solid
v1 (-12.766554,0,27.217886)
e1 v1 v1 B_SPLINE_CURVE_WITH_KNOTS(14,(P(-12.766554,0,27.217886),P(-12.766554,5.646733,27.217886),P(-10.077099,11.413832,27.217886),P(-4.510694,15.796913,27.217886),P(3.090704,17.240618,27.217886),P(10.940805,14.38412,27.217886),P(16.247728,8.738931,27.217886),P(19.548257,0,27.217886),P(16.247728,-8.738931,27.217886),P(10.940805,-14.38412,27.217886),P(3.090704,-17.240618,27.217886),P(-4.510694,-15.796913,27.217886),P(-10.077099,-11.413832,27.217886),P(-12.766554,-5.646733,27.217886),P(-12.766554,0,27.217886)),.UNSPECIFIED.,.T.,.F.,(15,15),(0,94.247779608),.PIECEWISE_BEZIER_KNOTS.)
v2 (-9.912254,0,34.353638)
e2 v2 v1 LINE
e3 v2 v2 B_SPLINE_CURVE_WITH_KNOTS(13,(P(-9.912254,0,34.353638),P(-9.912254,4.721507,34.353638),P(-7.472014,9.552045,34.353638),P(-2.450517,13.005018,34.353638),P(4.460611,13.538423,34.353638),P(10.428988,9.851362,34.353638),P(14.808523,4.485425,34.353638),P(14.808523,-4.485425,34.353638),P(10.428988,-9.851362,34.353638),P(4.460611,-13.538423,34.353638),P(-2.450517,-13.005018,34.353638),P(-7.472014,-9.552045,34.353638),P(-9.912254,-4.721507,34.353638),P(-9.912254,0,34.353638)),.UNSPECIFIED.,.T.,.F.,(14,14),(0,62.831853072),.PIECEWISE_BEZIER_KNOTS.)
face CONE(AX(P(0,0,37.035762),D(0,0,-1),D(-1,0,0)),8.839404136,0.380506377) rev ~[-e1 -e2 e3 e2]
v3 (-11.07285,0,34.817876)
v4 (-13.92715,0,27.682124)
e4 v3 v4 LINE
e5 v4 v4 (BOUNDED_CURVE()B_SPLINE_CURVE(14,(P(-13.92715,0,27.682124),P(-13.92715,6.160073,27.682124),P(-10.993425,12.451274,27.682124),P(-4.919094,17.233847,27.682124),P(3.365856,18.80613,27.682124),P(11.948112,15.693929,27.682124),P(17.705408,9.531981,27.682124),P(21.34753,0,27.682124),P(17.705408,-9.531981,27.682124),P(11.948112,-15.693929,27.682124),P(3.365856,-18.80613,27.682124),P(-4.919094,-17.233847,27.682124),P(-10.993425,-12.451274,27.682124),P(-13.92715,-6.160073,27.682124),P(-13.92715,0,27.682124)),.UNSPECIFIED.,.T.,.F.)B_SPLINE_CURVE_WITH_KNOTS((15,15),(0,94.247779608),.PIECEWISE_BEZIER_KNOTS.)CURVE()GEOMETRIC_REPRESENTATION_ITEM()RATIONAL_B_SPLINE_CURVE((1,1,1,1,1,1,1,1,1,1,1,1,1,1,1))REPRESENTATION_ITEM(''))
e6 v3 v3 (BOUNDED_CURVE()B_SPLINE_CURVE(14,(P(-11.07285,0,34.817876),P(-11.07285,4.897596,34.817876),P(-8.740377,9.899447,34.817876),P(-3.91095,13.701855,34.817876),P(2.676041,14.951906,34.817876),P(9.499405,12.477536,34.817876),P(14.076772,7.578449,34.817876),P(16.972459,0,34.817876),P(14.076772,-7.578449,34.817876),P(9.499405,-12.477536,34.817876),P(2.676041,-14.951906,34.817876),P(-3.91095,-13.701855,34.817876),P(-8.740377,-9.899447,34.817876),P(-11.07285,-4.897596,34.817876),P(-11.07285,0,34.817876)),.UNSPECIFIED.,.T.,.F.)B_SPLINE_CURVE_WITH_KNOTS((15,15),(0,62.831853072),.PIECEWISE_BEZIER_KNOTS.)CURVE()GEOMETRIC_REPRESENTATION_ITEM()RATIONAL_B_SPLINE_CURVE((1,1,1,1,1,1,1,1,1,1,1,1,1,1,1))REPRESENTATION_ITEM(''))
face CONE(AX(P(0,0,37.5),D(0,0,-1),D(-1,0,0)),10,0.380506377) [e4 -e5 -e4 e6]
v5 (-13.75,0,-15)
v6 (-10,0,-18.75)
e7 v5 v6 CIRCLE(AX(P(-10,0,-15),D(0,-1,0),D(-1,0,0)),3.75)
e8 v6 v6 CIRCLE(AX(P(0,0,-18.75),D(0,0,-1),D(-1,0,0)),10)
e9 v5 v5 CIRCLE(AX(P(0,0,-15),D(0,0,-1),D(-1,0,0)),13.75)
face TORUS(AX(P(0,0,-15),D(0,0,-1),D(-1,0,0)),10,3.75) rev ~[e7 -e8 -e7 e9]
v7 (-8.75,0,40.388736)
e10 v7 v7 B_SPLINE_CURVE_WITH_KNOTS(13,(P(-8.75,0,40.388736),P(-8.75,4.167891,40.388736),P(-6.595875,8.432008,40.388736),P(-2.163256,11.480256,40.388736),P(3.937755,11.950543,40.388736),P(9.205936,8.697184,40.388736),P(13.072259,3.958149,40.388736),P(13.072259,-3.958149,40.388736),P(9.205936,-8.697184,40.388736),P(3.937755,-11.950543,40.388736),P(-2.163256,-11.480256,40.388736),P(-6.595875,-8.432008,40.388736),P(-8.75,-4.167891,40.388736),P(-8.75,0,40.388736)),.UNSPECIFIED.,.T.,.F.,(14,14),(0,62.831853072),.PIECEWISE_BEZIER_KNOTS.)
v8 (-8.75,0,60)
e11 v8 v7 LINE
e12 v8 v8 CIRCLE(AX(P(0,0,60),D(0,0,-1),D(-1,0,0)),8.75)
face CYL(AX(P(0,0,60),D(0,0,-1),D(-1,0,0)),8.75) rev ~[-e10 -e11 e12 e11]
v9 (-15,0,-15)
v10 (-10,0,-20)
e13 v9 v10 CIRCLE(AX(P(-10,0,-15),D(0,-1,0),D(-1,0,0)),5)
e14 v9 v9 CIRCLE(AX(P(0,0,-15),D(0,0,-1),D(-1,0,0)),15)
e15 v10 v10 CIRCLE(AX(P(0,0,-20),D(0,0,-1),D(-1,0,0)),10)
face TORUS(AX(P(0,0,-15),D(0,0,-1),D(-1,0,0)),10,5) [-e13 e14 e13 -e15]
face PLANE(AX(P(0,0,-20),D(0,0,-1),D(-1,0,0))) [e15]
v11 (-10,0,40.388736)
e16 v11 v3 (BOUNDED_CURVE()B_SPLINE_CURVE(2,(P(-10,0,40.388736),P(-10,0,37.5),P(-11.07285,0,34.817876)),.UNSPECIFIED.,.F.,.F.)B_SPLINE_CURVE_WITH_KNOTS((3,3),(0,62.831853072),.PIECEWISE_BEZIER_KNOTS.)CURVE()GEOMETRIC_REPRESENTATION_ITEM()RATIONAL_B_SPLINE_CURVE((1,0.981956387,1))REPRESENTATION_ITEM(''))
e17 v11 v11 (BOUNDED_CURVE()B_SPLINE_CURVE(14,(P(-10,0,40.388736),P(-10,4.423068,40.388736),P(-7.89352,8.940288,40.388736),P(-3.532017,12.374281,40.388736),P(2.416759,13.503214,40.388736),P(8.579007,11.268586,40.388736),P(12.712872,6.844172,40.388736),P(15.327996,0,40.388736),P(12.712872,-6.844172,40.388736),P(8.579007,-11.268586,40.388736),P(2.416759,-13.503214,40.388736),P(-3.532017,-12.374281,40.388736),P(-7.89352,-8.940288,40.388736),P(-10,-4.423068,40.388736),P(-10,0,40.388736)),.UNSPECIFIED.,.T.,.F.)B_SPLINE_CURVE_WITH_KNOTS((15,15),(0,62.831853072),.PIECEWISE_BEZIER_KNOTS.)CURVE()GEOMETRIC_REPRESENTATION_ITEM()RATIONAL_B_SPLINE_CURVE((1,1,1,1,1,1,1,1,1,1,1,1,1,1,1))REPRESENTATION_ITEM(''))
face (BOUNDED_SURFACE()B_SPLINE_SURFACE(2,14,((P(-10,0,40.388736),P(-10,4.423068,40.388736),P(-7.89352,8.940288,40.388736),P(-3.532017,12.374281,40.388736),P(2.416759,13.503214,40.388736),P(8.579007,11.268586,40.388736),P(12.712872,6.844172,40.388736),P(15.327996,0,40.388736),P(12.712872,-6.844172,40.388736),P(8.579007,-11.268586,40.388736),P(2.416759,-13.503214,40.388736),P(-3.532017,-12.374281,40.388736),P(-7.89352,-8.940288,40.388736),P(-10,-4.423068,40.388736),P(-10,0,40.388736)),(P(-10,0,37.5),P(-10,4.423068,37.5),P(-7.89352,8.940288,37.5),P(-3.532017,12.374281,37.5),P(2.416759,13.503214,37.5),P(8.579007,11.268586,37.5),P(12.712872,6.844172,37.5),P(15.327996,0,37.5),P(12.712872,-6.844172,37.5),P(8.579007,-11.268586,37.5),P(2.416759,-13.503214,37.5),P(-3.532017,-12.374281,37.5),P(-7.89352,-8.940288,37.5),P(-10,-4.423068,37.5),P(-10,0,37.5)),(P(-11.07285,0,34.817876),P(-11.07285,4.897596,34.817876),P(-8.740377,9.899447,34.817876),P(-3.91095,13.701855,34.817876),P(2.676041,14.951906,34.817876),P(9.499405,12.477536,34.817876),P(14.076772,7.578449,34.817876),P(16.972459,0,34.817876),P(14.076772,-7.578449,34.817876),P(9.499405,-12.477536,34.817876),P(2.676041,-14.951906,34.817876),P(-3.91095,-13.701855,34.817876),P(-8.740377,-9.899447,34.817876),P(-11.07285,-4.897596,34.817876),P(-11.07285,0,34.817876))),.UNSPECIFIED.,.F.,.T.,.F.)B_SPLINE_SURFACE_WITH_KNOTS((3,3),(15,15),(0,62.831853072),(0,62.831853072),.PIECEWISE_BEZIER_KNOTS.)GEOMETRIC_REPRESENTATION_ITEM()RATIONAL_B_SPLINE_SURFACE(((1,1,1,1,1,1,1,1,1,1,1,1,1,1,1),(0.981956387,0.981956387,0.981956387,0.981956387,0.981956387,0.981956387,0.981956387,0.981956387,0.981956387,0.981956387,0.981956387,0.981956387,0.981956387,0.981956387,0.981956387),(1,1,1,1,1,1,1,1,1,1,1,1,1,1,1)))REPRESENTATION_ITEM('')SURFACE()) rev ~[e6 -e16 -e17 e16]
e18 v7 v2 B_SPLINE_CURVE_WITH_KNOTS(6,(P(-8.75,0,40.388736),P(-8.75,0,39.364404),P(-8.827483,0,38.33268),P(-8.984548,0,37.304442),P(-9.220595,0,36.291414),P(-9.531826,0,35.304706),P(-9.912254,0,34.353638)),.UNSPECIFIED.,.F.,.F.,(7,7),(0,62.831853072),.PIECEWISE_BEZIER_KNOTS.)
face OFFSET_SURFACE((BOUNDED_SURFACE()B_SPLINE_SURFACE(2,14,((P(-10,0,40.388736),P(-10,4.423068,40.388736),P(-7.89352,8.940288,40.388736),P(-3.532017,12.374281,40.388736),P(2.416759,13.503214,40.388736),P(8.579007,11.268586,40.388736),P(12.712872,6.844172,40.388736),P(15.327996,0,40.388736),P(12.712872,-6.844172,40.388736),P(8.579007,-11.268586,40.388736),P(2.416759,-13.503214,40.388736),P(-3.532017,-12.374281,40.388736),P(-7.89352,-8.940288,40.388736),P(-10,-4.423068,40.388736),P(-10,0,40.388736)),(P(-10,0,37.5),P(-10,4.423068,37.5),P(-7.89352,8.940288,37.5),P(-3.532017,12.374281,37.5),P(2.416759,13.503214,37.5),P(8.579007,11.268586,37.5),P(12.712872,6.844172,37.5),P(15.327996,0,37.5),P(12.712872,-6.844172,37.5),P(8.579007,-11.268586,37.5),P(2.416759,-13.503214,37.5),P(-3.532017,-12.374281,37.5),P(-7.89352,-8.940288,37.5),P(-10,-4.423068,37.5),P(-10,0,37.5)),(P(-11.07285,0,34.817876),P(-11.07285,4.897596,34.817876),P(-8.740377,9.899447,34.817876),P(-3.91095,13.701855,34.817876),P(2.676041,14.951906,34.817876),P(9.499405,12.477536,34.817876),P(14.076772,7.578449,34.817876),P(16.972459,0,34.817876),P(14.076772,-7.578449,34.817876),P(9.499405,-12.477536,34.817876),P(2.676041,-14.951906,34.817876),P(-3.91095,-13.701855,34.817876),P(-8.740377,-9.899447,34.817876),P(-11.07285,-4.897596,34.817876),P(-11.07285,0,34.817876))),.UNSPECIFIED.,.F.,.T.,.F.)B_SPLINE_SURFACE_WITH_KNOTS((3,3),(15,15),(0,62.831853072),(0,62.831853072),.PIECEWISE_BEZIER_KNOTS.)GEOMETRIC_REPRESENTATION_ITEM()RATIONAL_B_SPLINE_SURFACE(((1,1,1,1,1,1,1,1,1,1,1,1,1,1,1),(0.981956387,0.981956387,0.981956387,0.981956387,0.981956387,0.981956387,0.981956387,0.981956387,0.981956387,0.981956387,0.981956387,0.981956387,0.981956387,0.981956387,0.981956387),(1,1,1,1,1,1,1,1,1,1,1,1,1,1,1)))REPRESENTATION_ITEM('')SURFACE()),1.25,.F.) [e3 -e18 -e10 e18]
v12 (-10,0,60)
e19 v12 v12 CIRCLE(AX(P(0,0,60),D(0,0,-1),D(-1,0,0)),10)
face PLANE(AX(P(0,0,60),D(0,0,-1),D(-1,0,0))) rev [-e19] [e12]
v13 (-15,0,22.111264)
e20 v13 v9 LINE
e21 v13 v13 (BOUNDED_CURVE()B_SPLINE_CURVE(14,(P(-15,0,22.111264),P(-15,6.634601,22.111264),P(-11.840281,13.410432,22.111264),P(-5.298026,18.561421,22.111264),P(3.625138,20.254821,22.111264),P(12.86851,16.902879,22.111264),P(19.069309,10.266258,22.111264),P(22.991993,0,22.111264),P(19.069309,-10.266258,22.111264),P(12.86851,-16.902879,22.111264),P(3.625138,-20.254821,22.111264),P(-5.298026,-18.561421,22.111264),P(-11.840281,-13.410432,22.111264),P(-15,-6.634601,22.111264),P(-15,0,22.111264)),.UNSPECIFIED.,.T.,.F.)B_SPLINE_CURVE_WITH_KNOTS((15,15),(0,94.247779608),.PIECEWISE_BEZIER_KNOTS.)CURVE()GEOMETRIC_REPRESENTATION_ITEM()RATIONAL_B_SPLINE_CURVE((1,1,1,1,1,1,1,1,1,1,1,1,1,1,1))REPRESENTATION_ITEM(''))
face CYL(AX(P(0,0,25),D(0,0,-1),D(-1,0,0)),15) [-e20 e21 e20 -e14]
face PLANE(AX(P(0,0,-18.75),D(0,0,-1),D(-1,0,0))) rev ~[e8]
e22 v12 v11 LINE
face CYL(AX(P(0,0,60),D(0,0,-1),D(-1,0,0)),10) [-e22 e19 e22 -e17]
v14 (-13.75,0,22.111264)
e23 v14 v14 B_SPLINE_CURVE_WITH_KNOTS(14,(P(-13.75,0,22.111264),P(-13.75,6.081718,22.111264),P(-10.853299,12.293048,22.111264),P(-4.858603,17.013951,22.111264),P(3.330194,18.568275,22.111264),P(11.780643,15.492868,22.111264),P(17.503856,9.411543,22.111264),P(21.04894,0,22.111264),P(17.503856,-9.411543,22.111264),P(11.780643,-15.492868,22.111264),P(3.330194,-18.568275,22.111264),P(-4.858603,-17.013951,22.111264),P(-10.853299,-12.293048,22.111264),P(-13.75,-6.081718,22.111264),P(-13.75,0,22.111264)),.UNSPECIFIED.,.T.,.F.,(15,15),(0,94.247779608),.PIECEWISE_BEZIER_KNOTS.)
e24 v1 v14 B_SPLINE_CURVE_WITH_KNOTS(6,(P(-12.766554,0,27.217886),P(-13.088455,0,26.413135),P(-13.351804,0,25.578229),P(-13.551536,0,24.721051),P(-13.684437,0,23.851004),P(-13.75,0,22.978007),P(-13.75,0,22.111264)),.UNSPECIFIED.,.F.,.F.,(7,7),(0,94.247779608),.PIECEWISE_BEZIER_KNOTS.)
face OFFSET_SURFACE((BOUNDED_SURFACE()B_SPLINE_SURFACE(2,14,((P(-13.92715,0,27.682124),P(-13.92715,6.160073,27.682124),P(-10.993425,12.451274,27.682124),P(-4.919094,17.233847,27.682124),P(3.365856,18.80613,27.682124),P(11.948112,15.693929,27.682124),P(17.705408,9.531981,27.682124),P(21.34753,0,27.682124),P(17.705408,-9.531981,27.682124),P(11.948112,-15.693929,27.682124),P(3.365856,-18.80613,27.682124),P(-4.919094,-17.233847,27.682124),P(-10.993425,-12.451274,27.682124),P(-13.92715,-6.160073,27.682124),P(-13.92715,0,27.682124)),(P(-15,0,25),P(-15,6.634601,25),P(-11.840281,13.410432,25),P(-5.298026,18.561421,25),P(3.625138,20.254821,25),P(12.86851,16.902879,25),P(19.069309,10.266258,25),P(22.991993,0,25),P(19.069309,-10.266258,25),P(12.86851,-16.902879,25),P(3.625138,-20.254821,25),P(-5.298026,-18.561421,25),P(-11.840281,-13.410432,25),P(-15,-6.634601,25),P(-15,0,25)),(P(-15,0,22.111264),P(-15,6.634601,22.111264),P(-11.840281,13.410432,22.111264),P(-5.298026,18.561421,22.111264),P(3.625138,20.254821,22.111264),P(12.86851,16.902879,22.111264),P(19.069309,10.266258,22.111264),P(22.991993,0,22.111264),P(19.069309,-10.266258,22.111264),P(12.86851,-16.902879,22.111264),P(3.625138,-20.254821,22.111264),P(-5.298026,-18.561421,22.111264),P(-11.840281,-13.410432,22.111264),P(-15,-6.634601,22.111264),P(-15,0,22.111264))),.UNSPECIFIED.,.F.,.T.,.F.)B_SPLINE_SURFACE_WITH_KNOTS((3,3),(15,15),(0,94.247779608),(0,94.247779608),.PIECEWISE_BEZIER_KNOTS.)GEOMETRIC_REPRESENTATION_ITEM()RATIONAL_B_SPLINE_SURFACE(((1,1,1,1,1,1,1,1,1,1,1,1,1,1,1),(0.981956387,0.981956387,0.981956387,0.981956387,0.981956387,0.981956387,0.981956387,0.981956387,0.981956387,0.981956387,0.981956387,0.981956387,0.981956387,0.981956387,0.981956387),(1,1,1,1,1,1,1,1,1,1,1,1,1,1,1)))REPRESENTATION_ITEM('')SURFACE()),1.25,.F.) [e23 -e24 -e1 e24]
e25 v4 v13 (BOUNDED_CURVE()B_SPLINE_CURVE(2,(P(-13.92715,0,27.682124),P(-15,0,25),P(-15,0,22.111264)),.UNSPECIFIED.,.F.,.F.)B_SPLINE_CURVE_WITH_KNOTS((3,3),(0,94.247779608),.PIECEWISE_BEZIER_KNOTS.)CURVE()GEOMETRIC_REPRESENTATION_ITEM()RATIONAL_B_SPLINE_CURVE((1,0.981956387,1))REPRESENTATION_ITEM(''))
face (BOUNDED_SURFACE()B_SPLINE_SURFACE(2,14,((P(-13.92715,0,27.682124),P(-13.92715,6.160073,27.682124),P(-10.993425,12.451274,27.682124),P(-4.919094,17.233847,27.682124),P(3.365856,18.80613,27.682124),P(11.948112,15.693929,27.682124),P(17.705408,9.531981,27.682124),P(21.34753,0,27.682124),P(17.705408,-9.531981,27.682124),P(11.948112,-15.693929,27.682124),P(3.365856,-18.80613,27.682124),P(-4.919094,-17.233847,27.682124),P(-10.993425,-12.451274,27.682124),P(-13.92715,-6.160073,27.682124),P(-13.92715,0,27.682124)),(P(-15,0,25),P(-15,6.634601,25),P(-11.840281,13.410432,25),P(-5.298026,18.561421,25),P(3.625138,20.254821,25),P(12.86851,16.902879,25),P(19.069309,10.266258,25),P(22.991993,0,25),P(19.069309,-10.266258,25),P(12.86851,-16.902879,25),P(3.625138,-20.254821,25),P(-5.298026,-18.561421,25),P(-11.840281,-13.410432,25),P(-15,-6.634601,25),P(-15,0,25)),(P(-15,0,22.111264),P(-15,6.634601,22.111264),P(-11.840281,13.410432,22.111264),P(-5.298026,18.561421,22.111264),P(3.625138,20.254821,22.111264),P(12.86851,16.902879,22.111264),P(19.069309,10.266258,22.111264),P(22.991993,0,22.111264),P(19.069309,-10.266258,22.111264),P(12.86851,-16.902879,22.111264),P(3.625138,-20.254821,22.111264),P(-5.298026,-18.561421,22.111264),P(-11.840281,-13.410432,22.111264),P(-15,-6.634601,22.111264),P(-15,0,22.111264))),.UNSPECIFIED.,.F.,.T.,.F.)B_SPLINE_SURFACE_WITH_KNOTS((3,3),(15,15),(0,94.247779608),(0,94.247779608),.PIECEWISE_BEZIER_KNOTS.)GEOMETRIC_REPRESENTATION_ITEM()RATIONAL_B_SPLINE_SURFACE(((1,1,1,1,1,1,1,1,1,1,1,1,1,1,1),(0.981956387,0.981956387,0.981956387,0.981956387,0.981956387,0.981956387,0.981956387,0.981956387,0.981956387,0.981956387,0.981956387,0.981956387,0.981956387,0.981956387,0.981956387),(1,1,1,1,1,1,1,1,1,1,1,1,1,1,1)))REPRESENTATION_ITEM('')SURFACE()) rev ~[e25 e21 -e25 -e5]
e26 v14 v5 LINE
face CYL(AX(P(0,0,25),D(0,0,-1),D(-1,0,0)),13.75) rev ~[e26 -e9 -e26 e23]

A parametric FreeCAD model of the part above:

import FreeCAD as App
import Part
import Sketcher


def edges_at(feature, points):
    """Names of the edges that pass closest to the given points."""
    edges = feature.Shape.Edges
    near = lambda p: min(range(len(edges)), key=lambda i: edges[i].distToShape(Part.Vertex(*p))[0])
    return sorted({f"Edge{near(p) + 1}" for p in points})


def faces_at(feature, points):
    """Names of the faces that lie closest to the given points."""
    faces = feature.Shape.Faces
    near = lambda p: min(range(len(faces)), key=lambda i: faces[i].distToShape(Part.Vertex(*p))[0])
    return sorted({f"Face{near(p) + 1}" for p in points})

doc = App.newDocument("Part")
body = doc.addObject("PartDesign::Body", "Body")

# Sketch on XZ plane
sketch1 = doc.addObject("Sketcher::SketchObject", "Sketch")
body.addObject(sketch1)
sketch1.AttachmentSupport = (doc.XZ_Plane, [""])
sketch1.MapMode = "FlatFace"
sketch1.addGeometry([
    Part.LineSegment(App.Vector(-15, -20, 0), App.Vector(0, -20, 0)),  # 0
    Part.LineSegment(App.Vector(0, -20, 0), App.Vector(0, 60, 0)),  # 1
    Part.LineSegment(App.Vector(0, 60, 0), App.Vector(-10, 60, 0)),  # 2
    Part.LineSegment(App.Vector(-10, 60, 0), App.Vector(-10, 38, 0)),  # 3
    Part.LineSegment(App.Vector(-10, 38, 0), App.Vector(-15, 25, 0)),  # 4
    Part.LineSegment(App.Vector(-15, 25, 0), App.Vector(-15, -20, 0)),  # 5
], False)
sketch1.addConstraint([
    Sketcher.Constraint("Coincident", 0, 2, 1, 1),
    Sketcher.Constraint("Coincident", 1, 2, 2, 1),
    Sketcher.Constraint("Coincident", 2, 2, 3, 1),
    Sketcher.Constraint("Coincident", 3, 2, 4, 1),
    Sketcher.Constraint("Coincident", 4, 2, 5, 1),
    Sketcher.Constraint("Coincident", 5, 2, 0, 1),
    Sketcher.Constraint("Horizontal", 0),
    Sketcher.Constraint("Vertical", 1),
    Sketcher.Constraint("Horizontal", 2),
    Sketcher.Constraint("Vertical", 3),
    Sketcher.Constraint("Vertical", 5),
    Sketcher.Constraint("PointOnObject", 0, 2, -2),
    Sketcher.Constraint("DistanceX", 0, 1, 0, 2, 15.0),
    Sketcher.Constraint("DistanceX", 2, 2, 2, 1, 10.0),
    Sketcher.Constraint("DistanceY", 1, 1, 1, 2, 80.0),
    Sketcher.Constraint("DistanceY", 5, 2, 5, 1, 45.0),
    Sketcher.Constraint("DistanceY", 3, 2, 3, 1, 22.5),
    Sketcher.Constraint("DistanceY", 0, 2, -1, 1, 20.0),
])
revolution = doc.addObject("PartDesign::Revolution", "Revolution")
body.addObject(revolution)
revolution.Profile = sketch1
revolution.ReferenceAxis = (sketch1, ["V_Axis"])
revolution.Angle = 360
doc.recompute()

fillet = doc.addObject("PartDesign::Fillet", "Fillet")
body.addObject(fillet)
fillet.Base = (revolution, edges_at(revolution, [(15, 0, 25), (10, 0, 37.5)]))
fillet.Radius = 15
doc.recompute()

fillet2 = doc.addObject("PartDesign::Fillet", "Fillet001")
body.addObject(fillet2)
fillet2.Base = (fillet, edges_at(fillet, [(15, 0, -20)]))
fillet2.Radius = 5
doc.recompute()

thickness = doc.addObject("PartDesign::Thickness", "Thickness")
body.addObject(thickness)
thickness.Base = (fillet2, faces_at(fillet2, [(0, 0, 60)]))
thickness.Value = 1.25
thickness.Reversed = True
thickness.Join = "Arc"

doc.recompute()
